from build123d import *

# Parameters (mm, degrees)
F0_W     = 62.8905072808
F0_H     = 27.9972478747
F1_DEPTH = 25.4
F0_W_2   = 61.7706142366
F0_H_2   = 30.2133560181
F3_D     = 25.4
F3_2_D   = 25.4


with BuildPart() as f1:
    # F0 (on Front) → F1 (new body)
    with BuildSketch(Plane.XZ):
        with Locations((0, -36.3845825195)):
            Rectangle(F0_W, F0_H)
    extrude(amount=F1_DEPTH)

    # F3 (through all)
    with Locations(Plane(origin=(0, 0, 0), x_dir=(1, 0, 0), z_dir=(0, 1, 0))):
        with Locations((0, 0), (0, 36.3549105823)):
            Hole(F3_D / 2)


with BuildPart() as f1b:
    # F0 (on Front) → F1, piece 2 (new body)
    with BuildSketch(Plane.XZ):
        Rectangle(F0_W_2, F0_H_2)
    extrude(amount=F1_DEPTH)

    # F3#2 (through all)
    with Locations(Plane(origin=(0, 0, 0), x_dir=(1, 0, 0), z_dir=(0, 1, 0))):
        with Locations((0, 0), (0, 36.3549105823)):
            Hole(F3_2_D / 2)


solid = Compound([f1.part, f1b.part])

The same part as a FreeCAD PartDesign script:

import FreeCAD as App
import Part
import Sketcher

V = App.Vector
Q = App.Units.Quantity

doc = App.newDocument("Part")
body = doc.addObject("PartDesign::Body", "Body")

# Sketch on XZ plane
sketch1 = body.newObject("Sketcher::SketchObject", "Sketch")
sketch1.AttachmentSupport = (doc.getObject("XZ_Plane"), [""])
sketch1.MapMode = "FlatFace"
sketch1.addGeometry([
    Part.LineSegment(V(-31.445254, -22.385959, 0), V(-31.445254, -50.383206, 0)),
    Part.LineSegment(V(-31.445254, -50.383206, 0), V(31.445254, -50.383206, 0)),
    Part.LineSegment(V(31.445254, -50.383206, 0), V(31.445254, -22.385959, 0)),
    Part.LineSegment(V(31.445254, -22.385959, 0), V(-31.445254, -22.385959, 0)),
], False)
sketch1.addConstraint([
    Sketcher.Constraint("Coincident", 0, 2, 1, 1),
    Sketcher.Constraint("Coincident", 1, 2, 2, 1),
    Sketcher.Constraint("Coincident", 2, 2, 3, 1),
    Sketcher.Constraint("Coincident", 3, 2, 0, 1),
    Sketcher.Constraint("Vertical", 0),
    Sketcher.Constraint("Horizontal", 1),
    Sketcher.Constraint("Vertical", 2),
    Sketcher.Constraint("Horizontal", 3),
    Sketcher.Constraint("DistanceX", 1, 1, 1, 2, Q("62.890507 mm")),
    Sketcher.Constraint("DistanceY", 0, 2, 0, 1, Q("27.997248 mm")),
    Sketcher.Constraint("DistanceY", 2, 2, -1, 1, Q("22.385959 mm")),
    Sketcher.Constraint("DistanceX", 0, 2, -1, 1, Q("31.445254 mm")),
])
pad1 = body.newObject("PartDesign::Pad", "Pad")
pad1.Profile = sketch1
pad1.Length = Q("1 in")

# Sketch on XZ plane
sketch2 = body.newObject("Sketcher::SketchObject", "Sketch001")
sketch2.AttachmentSupport = (doc.getObject("XZ_Plane"), [""])
sketch2.MapMode = "FlatFace"
sketch2.addGeometry([
    Part.Circle(V(0, 0, 0), V(0, 0, 1), 12.7),
    Part.Circle(V(0, -36.354911, 0), V(0, 0, 1), 12.7),
], False)
sketch2.addConstraint([
    Sketcher.Constraint("Coincident", 0, 3, -1, 1),
    Sketcher.Constraint("Equal", 0, 1),
    Sketcher.Constraint("PointOnObject", 1, 3, -2),
    Sketcher.Constraint("Diameter", 0, Q("1 in")),
    Sketcher.Constraint("DistanceY", 1, 3, -1, 1, Q("36.354911 mm")),
])
doc.recompute()
hole = body.newObject("PartDesign::Hole", "Hole")
hole.Profile = sketch2
hole.ThreadType = "None"
hole.Diameter = Q("1 in")
hole.DepthType = "ThroughAll"
hole.Reversed = True
body2 = doc.addObject("PartDesign::Body", "Body001")

# Sketch on XZ plane
sketch3 = body2.newObject("Sketcher::SketchObject", "Sketch002")
sketch3.AttachmentSupport = (doc.getObject("XZ_Plane001"), [""])
sketch3.MapMode = "FlatFace"
sketch3.addGeometry([
    Part.LineSegment(V(-30.885307, 15.106678, 0), V(-30.885307, -15.106678, 0)),
    Part.LineSegment(V(-30.885307, -15.106678, 0), V(30.885307, -15.106678, 0)),
    Part.LineSegment(V(30.885307, -15.106678, 0), V(30.885307, 15.106678, 0)),
    Part.LineSegment(V(30.885307, 15.106678, 0), V(-30.885307, 15.106678, 0)),
], False)
sketch3.addConstraint([
    Sketcher.Constraint("Coincident", 0, 2, 1, 1),
    Sketcher.Constraint("Coincident", 1, 2, 2, 1),
    Sketcher.Constraint("Coincident", 2, 2, 3, 1),
    Sketcher.Constraint("Coincident", 3, 2, 0, 1),
    Sketcher.Constraint("Vertical", 0),
    Sketcher.Constraint("Horizontal", 1),
    Sketcher.Constraint("Vertical", 2),
    Sketcher.Constraint("Horizontal", 3),
    Sketcher.Constraint("Symmetric", 0, 2, 2, 2, -1, 1),
    Sketcher.Constraint("DistanceX", 1, 1, 1, 2, Q("61.770614 mm")),
    Sketcher.Constraint("DistanceY", 0, 2, 0, 1, Q("30.213356 mm")),
])
pad2 = body2.newObject("PartDesign::Pad", "Pad001")
pad2.Profile = sketch3
pad2.Length = Q("1 in")

# Sketch on XZ plane
sketch4 = body2.newObject("Sketcher::SketchObject", "Sketch003")
sketch4.AttachmentSupport = (doc.getObject("XZ_Plane001"), [""])
sketch4.MapMode = "FlatFace"
sketch4.addGeometry([
    Part.Circle(V(0, 0, 0), V(0, 0, 1), 12.7),
    Part.Circle(V(0, -36.354911, 0), V(0, 0, 1), 12.7),
], False)
sketch4.addConstraint([
    Sketcher.Constraint("Coincident", 0, 3, -1, 1),
    Sketcher.Constraint("Equal", 0, 1),
    Sketcher.Constraint("PointOnObject", 1, 3, -2),
    Sketcher.Constraint("Diameter", 0, Q("1 in")),
    Sketcher.Constraint("DistanceY", 1, 3, -1, 1, Q("36.354911 mm")),
])
doc.recompute()
hole2 = body2.newObject("PartDesign::Hole", "Hole001")
hole2.Profile = sketch4
hole2.ThreadType = "None"
hole2.Diameter = Q("1 in")
hole2.DepthType = "ThroughAll"
hole2.Reversed = True

doc.recompute()
